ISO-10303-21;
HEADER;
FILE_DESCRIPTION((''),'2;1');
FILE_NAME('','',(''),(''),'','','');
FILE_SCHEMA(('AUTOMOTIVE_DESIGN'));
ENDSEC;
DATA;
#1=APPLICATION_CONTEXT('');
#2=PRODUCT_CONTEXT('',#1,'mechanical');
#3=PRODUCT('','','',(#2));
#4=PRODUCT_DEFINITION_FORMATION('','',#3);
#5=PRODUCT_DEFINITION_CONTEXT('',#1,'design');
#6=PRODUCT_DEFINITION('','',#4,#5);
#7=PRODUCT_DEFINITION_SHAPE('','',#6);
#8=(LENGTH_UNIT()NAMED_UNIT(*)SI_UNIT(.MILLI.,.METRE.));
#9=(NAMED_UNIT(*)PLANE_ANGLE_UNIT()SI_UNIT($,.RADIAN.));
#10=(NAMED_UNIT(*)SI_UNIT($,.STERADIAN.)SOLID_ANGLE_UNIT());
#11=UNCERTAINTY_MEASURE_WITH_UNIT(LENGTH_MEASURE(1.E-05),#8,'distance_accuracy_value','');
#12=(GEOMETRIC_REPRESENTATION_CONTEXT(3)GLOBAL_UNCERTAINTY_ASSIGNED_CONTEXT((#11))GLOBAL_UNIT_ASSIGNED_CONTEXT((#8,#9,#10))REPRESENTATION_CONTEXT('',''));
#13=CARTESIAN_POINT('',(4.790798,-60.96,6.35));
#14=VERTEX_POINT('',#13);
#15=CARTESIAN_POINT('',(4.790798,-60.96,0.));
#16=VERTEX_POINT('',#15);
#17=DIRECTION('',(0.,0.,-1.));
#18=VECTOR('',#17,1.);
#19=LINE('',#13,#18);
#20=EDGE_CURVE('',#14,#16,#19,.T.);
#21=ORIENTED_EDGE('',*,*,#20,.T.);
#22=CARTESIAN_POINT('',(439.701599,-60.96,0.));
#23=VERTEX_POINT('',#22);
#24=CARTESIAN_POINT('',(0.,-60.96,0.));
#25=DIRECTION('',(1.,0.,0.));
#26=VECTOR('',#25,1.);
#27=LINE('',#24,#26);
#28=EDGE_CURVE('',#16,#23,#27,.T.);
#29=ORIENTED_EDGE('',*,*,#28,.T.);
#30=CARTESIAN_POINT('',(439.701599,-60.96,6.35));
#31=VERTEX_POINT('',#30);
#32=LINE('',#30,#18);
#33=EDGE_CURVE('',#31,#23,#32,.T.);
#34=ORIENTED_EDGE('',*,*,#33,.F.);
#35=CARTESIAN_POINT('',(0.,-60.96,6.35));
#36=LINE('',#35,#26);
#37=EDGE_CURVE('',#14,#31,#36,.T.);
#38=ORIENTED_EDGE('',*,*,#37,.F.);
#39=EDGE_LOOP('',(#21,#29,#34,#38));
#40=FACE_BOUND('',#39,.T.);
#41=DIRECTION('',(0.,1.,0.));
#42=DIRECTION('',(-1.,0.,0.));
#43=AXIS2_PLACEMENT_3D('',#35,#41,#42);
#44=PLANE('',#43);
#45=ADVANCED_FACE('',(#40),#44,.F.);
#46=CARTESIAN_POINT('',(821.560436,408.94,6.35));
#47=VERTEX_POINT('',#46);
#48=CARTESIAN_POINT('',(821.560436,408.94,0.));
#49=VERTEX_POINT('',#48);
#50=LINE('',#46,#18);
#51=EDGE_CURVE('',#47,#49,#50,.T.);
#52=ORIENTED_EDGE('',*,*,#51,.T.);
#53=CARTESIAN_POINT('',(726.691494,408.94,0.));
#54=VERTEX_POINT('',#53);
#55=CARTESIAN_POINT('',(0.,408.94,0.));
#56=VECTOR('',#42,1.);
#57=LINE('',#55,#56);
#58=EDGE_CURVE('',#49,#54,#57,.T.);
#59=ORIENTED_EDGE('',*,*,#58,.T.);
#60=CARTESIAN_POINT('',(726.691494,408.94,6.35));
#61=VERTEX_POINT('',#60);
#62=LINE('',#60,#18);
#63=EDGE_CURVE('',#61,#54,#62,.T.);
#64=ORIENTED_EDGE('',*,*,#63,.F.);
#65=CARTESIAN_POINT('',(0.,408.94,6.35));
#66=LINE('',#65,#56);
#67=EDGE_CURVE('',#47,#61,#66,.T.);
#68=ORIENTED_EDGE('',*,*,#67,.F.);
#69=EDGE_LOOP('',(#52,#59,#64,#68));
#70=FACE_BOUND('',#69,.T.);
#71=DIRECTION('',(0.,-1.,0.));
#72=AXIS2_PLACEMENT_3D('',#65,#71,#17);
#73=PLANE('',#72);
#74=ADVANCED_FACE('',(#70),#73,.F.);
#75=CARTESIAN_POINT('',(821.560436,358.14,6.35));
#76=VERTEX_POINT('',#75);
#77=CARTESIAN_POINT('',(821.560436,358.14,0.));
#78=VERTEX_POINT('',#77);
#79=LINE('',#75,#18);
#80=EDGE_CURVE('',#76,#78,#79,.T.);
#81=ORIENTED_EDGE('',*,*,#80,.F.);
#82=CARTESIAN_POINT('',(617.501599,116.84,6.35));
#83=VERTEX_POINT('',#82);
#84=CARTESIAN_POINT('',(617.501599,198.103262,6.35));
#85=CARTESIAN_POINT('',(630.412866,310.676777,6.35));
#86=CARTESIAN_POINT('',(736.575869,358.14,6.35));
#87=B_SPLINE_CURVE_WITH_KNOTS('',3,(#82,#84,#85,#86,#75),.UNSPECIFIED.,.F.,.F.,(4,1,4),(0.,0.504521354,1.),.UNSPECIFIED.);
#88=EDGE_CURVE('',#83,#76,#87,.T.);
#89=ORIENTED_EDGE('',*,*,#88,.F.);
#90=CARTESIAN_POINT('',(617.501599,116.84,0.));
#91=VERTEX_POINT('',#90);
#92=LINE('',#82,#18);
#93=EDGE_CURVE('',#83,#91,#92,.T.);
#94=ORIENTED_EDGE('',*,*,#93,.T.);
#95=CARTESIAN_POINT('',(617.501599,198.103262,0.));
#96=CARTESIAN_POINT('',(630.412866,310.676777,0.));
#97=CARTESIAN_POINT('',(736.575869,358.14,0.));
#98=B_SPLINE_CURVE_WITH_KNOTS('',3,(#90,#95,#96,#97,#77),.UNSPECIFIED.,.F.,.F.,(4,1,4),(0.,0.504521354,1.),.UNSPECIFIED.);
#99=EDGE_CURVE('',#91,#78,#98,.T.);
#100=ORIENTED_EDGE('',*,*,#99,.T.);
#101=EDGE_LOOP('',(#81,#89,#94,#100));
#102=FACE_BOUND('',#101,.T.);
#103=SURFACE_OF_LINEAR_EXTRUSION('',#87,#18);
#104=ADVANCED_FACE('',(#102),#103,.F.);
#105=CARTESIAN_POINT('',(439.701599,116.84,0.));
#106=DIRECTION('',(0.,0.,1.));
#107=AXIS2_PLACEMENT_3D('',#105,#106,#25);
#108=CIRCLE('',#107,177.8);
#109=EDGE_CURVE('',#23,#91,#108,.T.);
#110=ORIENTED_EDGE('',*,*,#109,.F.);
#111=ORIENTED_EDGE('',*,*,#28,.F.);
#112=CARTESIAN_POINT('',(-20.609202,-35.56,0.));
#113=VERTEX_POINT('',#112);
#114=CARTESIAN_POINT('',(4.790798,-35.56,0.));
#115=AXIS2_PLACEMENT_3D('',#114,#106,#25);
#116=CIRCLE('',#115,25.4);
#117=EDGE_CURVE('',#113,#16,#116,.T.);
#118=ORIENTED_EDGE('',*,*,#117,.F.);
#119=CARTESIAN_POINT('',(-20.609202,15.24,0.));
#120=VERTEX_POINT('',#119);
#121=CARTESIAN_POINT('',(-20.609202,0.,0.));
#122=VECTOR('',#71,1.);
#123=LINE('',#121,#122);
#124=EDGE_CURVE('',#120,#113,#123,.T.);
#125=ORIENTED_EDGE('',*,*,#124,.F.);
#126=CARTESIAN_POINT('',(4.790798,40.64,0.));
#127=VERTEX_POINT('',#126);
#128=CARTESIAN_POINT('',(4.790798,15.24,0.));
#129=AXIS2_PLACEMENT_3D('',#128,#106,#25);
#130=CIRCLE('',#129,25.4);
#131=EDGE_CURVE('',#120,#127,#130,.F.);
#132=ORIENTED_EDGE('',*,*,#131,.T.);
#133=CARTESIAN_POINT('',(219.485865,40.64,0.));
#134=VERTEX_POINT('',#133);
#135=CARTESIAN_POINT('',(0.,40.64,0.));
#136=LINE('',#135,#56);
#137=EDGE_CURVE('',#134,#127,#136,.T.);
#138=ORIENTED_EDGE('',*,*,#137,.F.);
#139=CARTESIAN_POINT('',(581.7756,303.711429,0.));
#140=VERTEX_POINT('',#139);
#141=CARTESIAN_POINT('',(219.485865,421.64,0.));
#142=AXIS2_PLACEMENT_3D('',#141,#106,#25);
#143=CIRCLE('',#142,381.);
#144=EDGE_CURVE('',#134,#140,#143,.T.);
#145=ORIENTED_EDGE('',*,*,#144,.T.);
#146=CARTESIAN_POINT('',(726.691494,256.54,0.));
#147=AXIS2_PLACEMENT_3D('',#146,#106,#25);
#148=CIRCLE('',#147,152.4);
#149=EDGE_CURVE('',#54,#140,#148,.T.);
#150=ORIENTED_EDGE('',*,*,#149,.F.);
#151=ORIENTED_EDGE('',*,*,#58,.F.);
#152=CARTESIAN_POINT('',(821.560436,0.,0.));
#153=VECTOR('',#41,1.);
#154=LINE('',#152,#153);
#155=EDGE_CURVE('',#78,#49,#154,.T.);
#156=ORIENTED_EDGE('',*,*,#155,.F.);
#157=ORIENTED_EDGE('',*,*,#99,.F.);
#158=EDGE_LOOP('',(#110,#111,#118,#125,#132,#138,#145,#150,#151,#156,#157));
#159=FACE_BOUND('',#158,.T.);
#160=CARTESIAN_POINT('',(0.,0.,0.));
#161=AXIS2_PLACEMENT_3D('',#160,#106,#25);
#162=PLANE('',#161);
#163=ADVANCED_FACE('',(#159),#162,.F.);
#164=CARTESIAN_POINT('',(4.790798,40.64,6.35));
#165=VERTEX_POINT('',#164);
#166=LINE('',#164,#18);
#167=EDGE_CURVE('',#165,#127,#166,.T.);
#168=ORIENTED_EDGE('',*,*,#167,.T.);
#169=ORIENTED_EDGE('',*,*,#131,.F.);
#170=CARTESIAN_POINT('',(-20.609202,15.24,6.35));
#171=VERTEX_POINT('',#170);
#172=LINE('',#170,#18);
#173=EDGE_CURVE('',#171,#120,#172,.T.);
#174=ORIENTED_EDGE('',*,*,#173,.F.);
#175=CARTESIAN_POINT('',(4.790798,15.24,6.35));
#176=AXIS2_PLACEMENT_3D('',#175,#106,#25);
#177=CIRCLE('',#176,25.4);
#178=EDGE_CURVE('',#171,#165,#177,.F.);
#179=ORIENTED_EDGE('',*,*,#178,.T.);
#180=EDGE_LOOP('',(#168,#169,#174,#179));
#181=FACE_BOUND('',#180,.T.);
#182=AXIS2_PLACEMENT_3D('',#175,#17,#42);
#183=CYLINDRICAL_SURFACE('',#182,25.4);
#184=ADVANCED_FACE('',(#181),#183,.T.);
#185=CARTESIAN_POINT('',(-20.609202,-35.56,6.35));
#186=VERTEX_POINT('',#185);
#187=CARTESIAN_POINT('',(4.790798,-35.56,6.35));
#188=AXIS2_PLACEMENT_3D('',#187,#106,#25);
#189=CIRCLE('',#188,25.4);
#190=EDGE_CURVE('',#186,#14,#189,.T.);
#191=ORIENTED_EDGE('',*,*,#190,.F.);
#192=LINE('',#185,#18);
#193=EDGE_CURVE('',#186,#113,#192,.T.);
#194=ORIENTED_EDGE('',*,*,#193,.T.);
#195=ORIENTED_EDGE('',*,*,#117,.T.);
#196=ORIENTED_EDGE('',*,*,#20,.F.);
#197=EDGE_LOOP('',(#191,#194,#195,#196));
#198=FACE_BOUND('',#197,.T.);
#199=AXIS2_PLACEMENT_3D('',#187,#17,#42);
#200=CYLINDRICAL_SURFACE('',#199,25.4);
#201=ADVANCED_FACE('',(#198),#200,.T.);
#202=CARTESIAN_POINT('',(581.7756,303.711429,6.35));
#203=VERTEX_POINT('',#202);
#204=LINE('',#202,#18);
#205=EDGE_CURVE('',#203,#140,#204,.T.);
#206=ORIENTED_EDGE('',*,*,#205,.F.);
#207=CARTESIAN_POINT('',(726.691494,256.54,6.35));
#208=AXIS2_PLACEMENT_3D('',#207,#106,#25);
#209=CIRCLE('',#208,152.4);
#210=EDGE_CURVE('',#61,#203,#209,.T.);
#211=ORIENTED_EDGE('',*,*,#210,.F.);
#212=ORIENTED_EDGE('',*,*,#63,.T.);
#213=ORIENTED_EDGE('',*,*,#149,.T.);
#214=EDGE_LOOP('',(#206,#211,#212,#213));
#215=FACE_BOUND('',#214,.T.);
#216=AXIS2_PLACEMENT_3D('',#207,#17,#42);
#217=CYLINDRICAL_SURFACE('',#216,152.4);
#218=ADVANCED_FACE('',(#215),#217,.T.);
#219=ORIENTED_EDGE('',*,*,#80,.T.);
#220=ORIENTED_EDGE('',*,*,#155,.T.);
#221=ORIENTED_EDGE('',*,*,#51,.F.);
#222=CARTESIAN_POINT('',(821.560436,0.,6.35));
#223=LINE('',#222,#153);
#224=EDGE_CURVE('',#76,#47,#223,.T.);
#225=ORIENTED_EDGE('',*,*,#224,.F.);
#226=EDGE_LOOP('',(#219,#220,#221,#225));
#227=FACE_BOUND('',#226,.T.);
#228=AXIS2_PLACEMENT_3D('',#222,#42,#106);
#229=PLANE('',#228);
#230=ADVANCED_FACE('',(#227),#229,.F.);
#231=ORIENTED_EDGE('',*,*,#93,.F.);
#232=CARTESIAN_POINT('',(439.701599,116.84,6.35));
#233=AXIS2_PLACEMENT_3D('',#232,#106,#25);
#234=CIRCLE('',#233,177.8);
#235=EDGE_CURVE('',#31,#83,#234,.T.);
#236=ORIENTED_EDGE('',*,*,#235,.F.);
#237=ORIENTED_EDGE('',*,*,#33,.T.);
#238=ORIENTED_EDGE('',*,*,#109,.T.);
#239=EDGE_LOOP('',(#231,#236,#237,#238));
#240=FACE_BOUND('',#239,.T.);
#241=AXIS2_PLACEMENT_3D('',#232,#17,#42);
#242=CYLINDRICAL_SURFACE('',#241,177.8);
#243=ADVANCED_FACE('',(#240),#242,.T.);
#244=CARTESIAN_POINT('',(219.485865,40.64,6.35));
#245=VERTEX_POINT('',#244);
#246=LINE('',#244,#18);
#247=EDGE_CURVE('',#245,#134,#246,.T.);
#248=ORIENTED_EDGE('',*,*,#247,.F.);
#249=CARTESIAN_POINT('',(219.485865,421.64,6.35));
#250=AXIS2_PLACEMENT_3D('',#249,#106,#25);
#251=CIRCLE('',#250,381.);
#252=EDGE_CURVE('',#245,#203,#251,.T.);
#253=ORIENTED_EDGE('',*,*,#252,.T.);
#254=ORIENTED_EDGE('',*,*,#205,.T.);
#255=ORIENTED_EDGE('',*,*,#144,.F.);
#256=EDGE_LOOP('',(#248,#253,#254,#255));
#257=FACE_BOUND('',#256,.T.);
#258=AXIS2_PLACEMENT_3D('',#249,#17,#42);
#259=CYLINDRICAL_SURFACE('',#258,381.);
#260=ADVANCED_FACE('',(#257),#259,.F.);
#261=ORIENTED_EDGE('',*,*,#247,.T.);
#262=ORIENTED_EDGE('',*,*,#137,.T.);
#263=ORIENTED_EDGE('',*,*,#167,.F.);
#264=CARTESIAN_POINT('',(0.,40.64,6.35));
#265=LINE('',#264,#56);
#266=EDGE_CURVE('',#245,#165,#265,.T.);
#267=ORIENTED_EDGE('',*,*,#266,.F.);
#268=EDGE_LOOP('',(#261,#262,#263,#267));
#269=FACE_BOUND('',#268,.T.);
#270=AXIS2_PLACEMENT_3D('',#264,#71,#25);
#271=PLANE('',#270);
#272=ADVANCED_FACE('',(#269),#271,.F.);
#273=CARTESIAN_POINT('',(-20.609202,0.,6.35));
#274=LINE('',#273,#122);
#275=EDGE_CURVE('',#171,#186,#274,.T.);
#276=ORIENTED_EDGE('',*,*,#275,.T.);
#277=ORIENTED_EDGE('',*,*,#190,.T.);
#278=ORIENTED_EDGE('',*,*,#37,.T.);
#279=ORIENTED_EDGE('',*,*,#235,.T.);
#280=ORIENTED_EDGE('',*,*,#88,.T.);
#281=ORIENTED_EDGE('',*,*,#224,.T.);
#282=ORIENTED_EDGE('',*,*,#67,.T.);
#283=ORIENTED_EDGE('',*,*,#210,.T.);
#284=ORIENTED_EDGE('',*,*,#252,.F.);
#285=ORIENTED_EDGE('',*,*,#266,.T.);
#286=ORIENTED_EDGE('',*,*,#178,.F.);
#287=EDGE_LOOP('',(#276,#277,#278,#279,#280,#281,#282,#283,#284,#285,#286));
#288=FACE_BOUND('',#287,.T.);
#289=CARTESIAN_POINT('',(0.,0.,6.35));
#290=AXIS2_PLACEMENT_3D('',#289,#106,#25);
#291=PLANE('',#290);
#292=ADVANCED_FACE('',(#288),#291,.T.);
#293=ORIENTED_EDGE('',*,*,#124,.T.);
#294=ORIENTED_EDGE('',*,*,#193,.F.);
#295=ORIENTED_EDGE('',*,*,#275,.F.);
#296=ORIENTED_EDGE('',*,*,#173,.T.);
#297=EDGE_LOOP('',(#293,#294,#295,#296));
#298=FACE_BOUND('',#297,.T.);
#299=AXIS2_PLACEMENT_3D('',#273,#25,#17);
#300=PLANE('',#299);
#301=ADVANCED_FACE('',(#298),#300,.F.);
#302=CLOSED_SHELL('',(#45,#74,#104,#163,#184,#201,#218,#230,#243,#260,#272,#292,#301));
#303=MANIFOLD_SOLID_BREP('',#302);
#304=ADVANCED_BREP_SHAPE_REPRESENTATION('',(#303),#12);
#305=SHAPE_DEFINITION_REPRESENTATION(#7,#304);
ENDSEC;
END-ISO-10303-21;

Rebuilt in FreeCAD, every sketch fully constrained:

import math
import FreeCAD as App
import Part
import Sketcher

V = App.Vector
Q = App.Units.Quantity

doc = App.newDocument("Part")
body = doc.addObject("PartDesign::Body", "Body")

# Sketch on XY plane
sketch1 = body.newObject("Sketcher::SketchObject", "Sketch")
sketch1.AttachmentSupport = (doc.getObject("XY_Plane"), [""])
sketch1.MapMode = "FlatFace"
sketch1.addGeometry([
    Part.LineSegment(V(4.790798, -60.96, 0), V(439.701599, -60.96, 0)),  # 0
    Part.ArcOfCircle(Part.Circle(V(439.701599, 116.84, 0), V(0, 0, 1), 177.8), math.radians(-90), math.radians(0)),  # 1
    Part.BSplineCurve([V(617.501599, 116.84, 0), V(617.501599, 198.103262, 0), V(630.412866, 310.676777, 0), V(736.575869, 358.14, 0), V(821.560436, 358.14, 0)], [4, 1, 4], [0, 0.504521354, 1], False, 3, [1, 1, 1, 1, 1], False),  # 2
    Part.LineSegment(V(821.560436, 358.14, 0), V(821.560436, 408.94, 0)),  # 3
    Part.LineSegment(V(821.560436, 408.94, 0), V(726.691494, 408.94, 0)),  # 4
    Part.ArcOfCircle(Part.Circle(V(726.691494, 256.54, 0), V(0, 0, 1), 152.4), math.radians(90), math.radians(161.969465)),  # 5
    Part.ArcOfCircle(Part.Circle(V(219.485865, 421.64, 0), V(0, 0, 1), 381), math.radians(-90), math.radians(-18.030535)),  # 6
    Part.LineSegment(V(219.485865, 40.64, 0), V(4.790798, 40.64, 0)),  # 7
    Part.ArcOfCircle(Part.Circle(V(4.790798, 15.24, 0), V(0, 0, 1), 25.4), math.radians(90), math.radians(180)),  # 8
    Part.LineSegment(V(-20.609202, 15.24, 0), V(-20.609202, -35.56, 0)),  # 9
    Part.ArcOfCircle(Part.Circle(V(4.790798, -35.56, 0), V(0, 0, 1), 25.4), math.radians(180), math.radians(270)),  # 10
], False)
sketch1.addConstraint([
    Sketcher.Constraint("Block", 2),
    Sketcher.Constraint("Tangent", 0, 2, 1, 1),
    Sketcher.Constraint("Coincident", 1, 2, 2, 1),
    Sketcher.Constraint("Coincident", 2, 2, 3, 1),
    Sketcher.Constraint("Coincident", 3, 2, 4, 1),
    Sketcher.Constraint("Tangent", 4, 2, 5, 1),
    Sketcher.Constraint("Tangent", 5, 2, 6, 2),
    Sketcher.Constraint("Tangent", 6, 1, 7, 1),
    Sketcher.Constraint("Tangent", 7, 2, 8, 1),
    Sketcher.Constraint("Tangent", 8, 2, 9, 1),
    Sketcher.Constraint("Tangent", 9, 2, 10, 1),
    Sketcher.Constraint("Tangent", 10, 2, 0, 1),
    Sketcher.Constraint("Horizontal", 0),
    Sketcher.Constraint("Vertical", 3),
    Sketcher.Constraint("Horizontal", 4),
    Sketcher.Constraint("Horizontal", 7),
    Sketcher.Constraint("Vertical", 9),
    Sketcher.Constraint("Equal", 8, 10),
    Sketcher.Constraint("Equal", 3, 9),
    Sketcher.Constraint("Radius", 1, Q("7 in")),
    Sketcher.Constraint("Radius", 5, Q("6 in")),
    Sketcher.Constraint("Radius", 6, Q("15 in")),
    Sketcher.Constraint("Radius", 8, Q("1 in")),
    Sketcher.Constraint("DistanceY", 3, 1, 3, 2, Q("2 in")),
    Sketcher.Constraint("DistanceY", -1, 1, 1, 3, Q("4.6 in")),
    Sketcher.Constraint("DistanceX", 0, 1, 0, 2, 434.910801),
    Sketcher.Constraint("DistanceX", -1, 1, 5, 2, 581.7756),
])
pad1 = body.newObject("PartDesign::Pad", "Pad")
pad1.Profile = sketch1
pad1.Length = Q("0.25 in")

doc.recompute()
